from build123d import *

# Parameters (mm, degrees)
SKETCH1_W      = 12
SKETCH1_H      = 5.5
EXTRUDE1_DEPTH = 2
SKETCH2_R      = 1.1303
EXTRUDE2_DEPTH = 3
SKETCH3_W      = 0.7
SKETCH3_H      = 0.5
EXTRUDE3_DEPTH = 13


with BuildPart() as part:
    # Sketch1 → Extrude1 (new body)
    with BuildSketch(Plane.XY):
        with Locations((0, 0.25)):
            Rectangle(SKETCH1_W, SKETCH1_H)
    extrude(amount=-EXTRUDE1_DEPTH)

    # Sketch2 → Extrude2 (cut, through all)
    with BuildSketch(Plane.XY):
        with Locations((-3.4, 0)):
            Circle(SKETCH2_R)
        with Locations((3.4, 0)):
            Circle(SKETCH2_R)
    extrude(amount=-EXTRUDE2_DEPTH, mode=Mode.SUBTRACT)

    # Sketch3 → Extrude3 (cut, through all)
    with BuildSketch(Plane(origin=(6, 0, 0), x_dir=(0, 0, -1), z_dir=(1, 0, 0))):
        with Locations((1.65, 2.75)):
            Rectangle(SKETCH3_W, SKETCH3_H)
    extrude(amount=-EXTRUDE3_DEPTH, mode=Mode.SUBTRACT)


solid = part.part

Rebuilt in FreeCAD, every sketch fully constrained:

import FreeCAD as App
import Part
import Sketcher
from FreeCAD import Vector

doc = App.newDocument("Part")
body = doc.addObject("PartDesign::Body", "Body")

sketch1 = body.newObject("Sketcher::SketchObject", "Sketch")
sketch1.AttachmentSupport = (doc.getObject("XY_Plane"), [""])
sketch1.MapMode = "FlatFace"
sketch1.addGeometry([
    Part.LineSegment(Vector(-6, 3, 0), Vector(-6, -2, 0)),
    Part.LineSegment(Vector(-6, -2, 0), Vector(6, -2, 0)),
    Part.LineSegment(Vector(6, -2, 0), Vector(6, 3, 0)),
    Part.LineSegment(Vector(6, 3, 0), Vector(-6, 3, 0)),
], False)
sketch1.addConstraint([
    Sketcher.Constraint("Coincident", 0, 2, 1, 1),
    Sketcher.Constraint("Coincident", 1, 2, 2, 1),
    Sketcher.Constraint("Coincident", 2, 2, 3, 1),
    Sketcher.Constraint("Coincident", 3, 2, 0, 1),
    Sketcher.Constraint("Vertical", 0),
    Sketcher.Constraint("Horizontal", 1),
    Sketcher.Constraint("Vertical", 2),
    Sketcher.Constraint("Horizontal", 3),
    Sketcher.Constraint("DistanceX", 1, 1, 1, 2, 12.0),
    Sketcher.Constraint("DistanceY", 0, 2, 0, 1, 5.5),
    Sketcher.Constraint("DistanceX", 0, 2, -1, 1, 6.0),
    Sketcher.Constraint("DistanceY", -1, 1, 2, 2, 3.0),
])
pad1 = body.newObject("PartDesign::Pad", "Pad")
pad1.Profile = sketch1
pad1.Length = 2
pad1.Reversed = True

sketch2 = body.newObject("Sketcher::SketchObject", "Sketch001")
sketch2.AttachmentSupport = (doc.getObject("XY_Plane"), [""])
sketch2.MapMode = "FlatFace"
sketch2.addGeometry([
    Part.Circle(Vector(-3.4, 0, 0), Vector(0, 0, 1), 1.1),
    Part.Circle(Vector(3.4, 0, 0), Vector(0, 0, 1), 1.1),
], False)
sketch2.addConstraint([
    Sketcher.Constraint("Equal", 0, 1),
    Sketcher.Constraint("Symmetric", 0, 3, 1, 3, -1, 1),
    Sketcher.Constraint("PointOnObject", 0, 3, -1),
    Sketcher.Constraint("Diameter", 0, 2.2606),
    Sketcher.Constraint("DistanceX", 0, 3, -1, 1, 3.4),
])
pocket1 = body.newObject("PartDesign::Pocket", "Pocket")
pocket1.Profile = sketch2
pocket1.Type = "ThroughAll"

sketch3 = body.newObject("Sketcher::SketchObject", "Sketch002")
sketch3.AttachmentSupport = (doc.getObject("YZ_Plane"), [""])
sketch3.MapMode = "FlatFace"
sketch3.AttachmentOffset = App.Placement(Vector(0, 0, 6), App.Rotation())
sketch3.addGeometry([
    Part.LineSegment(Vector(3, -1.3, 0), Vector(2.5, -1.3, 0)),
    Part.LineSegment(Vector(2.5, -1.3, 0), Vector(2.5, -2, 0)),
    Part.LineSegment(Vector(2.5, -2, 0), Vector(3, -2, 0)),
    Part.LineSegment(Vector(3, -2, 0), Vector(3, -1.3, 0)),
], False)
sketch3.addConstraint([
    Sketcher.Constraint("Coincident", 0, 2, 1, 1),
    Sketcher.Constraint("Coincident", 1, 2, 2, 1),
    Sketcher.Constraint("Coincident", 2, 2, 3, 1),
    Sketcher.Constraint("Coincident", 3, 2, 0, 1),
    Sketcher.Constraint("Horizontal", 0),
    Sketcher.Constraint("Vertical", 1),
    Sketcher.Constraint("Horizontal", 2),
    Sketcher.Constraint("Vertical", 3),
    Sketcher.Constraint("DistanceX", 0, 2, 0, 1, 0.5),
    Sketcher.Constraint("DistanceY", 1, 2, 1, 1, 0.7),
    Sketcher.Constraint("DistanceY", 1, 2, -1, 1, 2.0),
    Sketcher.Constraint("DistanceX", -1, 1, 2, 2, 3.0),
])
pocket2 = body.newObject("PartDesign::Pocket", "Pocket001")
pocket2.Profile = sketch3
pocket2.Type = "ThroughAll"

doc.recompute()
